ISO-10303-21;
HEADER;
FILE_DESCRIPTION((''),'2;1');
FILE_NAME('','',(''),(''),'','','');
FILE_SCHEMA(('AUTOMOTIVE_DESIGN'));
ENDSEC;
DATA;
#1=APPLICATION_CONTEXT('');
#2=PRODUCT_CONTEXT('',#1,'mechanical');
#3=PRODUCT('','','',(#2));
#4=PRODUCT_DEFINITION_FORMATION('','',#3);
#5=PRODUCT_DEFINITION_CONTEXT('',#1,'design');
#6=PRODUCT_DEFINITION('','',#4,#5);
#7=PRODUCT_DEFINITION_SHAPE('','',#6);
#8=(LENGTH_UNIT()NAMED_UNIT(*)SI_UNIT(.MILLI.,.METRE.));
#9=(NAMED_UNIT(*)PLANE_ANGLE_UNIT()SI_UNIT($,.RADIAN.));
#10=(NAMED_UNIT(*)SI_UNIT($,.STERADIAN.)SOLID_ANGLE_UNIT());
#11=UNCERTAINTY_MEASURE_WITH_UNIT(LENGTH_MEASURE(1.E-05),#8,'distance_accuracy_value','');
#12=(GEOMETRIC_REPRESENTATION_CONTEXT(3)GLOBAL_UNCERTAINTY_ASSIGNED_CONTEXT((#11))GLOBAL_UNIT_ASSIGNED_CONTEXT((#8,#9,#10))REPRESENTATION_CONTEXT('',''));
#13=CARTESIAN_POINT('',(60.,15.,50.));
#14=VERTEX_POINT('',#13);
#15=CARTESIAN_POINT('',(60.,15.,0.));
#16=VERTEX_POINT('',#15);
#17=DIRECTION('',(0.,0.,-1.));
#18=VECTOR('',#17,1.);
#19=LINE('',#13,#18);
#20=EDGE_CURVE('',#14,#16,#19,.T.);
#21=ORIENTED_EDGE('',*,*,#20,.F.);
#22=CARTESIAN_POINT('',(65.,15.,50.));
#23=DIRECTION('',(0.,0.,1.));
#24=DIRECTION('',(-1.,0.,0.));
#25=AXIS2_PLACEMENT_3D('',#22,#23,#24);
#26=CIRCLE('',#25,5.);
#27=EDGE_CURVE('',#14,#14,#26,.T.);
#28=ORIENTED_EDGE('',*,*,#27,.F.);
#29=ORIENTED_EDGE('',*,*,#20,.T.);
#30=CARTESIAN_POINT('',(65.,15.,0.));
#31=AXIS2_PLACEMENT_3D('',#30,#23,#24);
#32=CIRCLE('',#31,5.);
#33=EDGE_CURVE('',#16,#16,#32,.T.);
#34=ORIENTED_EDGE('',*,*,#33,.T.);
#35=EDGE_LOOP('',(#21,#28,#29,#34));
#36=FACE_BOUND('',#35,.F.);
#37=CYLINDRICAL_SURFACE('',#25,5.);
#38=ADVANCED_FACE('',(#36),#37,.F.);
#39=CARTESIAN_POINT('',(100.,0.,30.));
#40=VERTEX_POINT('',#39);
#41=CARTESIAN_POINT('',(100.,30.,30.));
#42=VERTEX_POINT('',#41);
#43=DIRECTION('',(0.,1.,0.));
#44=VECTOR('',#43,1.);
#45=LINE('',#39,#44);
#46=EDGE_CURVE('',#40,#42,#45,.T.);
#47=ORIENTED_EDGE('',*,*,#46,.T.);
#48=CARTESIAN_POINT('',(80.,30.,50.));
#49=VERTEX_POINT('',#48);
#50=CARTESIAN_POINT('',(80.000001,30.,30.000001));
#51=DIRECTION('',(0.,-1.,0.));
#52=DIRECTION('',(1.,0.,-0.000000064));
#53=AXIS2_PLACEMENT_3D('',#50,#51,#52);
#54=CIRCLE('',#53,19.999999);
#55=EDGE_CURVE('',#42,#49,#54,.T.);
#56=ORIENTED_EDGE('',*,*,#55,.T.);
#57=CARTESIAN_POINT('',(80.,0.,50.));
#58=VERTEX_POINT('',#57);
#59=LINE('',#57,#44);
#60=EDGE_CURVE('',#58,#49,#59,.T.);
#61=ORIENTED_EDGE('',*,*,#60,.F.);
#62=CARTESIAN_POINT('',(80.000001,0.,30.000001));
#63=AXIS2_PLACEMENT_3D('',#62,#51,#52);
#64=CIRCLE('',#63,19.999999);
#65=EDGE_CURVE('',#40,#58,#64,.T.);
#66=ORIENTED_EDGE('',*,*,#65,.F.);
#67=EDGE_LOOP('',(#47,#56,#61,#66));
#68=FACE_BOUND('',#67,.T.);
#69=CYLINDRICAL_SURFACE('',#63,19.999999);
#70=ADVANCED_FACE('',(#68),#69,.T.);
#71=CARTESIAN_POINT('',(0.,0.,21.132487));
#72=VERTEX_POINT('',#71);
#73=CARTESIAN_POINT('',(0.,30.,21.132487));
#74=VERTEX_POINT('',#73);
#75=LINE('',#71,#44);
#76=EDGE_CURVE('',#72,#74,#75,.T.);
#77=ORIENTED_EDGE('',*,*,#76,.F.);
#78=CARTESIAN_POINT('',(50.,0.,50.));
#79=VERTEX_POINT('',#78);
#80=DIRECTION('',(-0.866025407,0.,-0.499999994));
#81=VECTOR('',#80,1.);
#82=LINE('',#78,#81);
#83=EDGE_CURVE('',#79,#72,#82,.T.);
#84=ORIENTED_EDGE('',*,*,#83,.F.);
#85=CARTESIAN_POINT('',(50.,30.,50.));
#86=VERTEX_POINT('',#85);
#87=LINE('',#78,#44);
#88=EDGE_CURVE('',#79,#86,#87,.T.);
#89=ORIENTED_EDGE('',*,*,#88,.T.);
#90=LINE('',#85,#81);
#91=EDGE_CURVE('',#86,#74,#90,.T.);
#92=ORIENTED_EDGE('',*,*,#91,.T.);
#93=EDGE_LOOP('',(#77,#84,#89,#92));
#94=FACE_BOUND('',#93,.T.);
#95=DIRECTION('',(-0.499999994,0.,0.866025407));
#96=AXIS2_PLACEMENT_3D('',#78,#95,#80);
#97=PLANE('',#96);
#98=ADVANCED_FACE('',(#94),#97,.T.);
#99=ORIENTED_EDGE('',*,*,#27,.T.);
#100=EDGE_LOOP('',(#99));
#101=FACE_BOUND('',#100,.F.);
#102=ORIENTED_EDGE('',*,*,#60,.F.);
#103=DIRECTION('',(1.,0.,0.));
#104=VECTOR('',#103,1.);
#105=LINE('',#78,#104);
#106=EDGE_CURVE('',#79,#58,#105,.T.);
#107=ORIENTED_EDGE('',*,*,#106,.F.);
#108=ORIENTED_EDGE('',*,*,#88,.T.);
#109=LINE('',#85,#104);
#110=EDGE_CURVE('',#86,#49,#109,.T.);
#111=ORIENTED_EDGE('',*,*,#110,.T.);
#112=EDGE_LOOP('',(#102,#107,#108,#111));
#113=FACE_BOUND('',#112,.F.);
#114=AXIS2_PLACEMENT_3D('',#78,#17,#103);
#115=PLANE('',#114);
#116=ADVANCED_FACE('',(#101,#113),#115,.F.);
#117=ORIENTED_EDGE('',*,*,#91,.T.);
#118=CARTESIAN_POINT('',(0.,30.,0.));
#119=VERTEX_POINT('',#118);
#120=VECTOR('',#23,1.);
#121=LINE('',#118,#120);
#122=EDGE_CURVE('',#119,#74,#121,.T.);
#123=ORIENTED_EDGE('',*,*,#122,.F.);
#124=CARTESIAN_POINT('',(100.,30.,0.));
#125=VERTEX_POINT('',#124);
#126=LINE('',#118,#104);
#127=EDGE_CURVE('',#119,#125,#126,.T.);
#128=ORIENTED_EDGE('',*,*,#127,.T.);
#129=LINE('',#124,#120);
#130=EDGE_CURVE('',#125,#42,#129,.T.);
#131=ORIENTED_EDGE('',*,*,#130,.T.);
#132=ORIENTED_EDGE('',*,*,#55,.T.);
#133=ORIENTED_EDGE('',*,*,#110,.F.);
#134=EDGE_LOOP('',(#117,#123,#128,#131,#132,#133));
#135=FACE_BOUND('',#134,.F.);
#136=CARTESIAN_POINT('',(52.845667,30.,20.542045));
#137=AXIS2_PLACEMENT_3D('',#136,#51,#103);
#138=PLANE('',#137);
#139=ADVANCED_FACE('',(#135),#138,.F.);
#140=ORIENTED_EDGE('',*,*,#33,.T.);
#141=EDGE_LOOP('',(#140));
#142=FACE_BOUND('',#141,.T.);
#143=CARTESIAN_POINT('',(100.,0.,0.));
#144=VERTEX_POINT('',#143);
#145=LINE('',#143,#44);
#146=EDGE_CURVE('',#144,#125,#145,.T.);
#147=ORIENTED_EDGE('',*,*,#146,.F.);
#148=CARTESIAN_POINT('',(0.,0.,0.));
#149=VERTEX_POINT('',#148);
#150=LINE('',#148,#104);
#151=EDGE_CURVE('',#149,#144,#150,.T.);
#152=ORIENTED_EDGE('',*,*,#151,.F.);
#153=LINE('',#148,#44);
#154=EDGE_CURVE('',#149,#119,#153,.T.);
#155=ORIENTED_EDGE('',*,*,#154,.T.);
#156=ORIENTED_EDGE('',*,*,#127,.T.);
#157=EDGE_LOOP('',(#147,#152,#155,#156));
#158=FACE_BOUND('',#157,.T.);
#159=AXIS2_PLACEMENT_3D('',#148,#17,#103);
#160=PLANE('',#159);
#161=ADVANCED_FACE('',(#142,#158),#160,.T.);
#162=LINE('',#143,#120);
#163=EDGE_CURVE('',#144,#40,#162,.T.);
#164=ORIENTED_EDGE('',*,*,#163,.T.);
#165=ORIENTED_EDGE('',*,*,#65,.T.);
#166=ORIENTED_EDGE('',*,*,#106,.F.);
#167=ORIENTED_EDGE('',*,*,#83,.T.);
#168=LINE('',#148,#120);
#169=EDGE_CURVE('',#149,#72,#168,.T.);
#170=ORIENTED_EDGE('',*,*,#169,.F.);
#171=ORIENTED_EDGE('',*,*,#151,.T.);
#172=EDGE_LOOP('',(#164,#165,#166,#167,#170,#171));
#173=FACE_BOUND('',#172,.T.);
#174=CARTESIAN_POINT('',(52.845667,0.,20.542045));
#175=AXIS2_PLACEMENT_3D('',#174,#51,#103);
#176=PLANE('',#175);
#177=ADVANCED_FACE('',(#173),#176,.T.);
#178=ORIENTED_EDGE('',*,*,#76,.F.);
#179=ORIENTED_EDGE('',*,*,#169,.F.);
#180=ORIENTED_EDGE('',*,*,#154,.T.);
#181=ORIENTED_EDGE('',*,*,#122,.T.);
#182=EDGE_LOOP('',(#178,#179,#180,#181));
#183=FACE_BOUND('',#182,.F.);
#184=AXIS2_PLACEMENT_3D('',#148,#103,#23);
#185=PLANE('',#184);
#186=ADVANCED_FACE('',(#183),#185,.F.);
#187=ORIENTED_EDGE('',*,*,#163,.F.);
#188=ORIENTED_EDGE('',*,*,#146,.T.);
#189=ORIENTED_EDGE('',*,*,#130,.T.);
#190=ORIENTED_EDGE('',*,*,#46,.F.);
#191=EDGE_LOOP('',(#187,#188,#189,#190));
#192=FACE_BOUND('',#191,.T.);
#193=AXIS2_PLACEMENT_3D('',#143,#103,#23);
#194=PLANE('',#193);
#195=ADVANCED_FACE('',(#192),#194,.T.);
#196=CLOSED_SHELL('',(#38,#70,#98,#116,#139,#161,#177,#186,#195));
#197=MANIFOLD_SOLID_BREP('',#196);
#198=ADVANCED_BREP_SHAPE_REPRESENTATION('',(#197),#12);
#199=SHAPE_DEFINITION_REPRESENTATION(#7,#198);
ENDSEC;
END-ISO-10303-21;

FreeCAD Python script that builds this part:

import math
import FreeCAD as App
import Part
import Sketcher
Q = App.Units.Quantity

doc = App.newDocument("Part")
body = doc.addObject("PartDesign::Body", "Body")

sketch1 = body.newObject("Sketcher::SketchObject", "Sketch")
sketch1.AttachmentSupport = (doc.getObject("XZ_Plane"), [""])
sketch1.MapMode = "FlatFace"
sketch1.addGeometry([
    Part.LineSegment(App.Vector(0, 0, 0), App.Vector(100, 0, 0)),
    Part.LineSegment(App.Vector(100, 0, 0), App.Vector(100, 30, 0)),
    Part.ArcOfCircle(Part.Circle(App.Vector(80, 30, 0), App.Vector(0, 0, 1), 20), math.radians(0), math.radians(90)),
    Part.LineSegment(App.Vector(80, 50, 0), App.Vector(50, 50, 0)),
    Part.LineSegment(App.Vector(50, 50, 0), App.Vector(0, 21, 0)),
    Part.LineSegment(App.Vector(0, 21, 0), App.Vector(0, 0, 0)),
], False)
sketch1.addConstraint([
    Sketcher.Constraint("Coincident", 0, 2, 1, 1),
    Sketcher.Constraint("Tangent", 1, 2, 2, 1),
    Sketcher.Constraint("Tangent", 2, 2, 3, 1),
    Sketcher.Constraint("Coincident", 3, 2, 4, 1),
    Sketcher.Constraint("Coincident", 4, 2, 5, 1),
    Sketcher.Constraint("Coincident", 5, 2, 0, 1),
    Sketcher.Constraint("Horizontal", 0),
    Sketcher.Constraint("Vertical", 1),
    Sketcher.Constraint("Horizontal", 3),
    Sketcher.Constraint("Vertical", 5),
    Sketcher.Constraint("Coincident", 5, 2, -1, 1),
    Sketcher.Constraint("Equal", 3, 1),
    Sketcher.Constraint("Radius", 2, Q("19.999999 mm")),
    Sketcher.Constraint("DistanceX", 0, 1, 0, 2, Q("100 mm")),
    Sketcher.Constraint("DistanceX", 3, 2, 3, 1, Q("30 mm")),
    Sketcher.Constraint("Angle", 4, Q("-150 deg")),
])
pad1 = body.newObject("PartDesign::Pad", "Pad")
pad1.Profile = sketch1
pad1.Length = 30
pad1.Reversed = True

sketch2 = body.newObject("Sketcher::SketchObject", "Sketch001")
sketch2.AttachmentSupport = (doc.getObject("XY_Plane"), [""])
sketch2.MapMode = "FlatFace"
sketch2.AttachmentOffset = App.Placement(App.Vector(0, 0, 50), App.Rotation())
sketch2.addGeometry(Part.Circle(App.Vector(65, 15, 0), App.Vector(0, 0, 1), 5), False)
sketch2.addConstraint([
    Sketcher.Constraint("Diameter", 0, Q("10 mm")),
    Sketcher.Constraint("DistanceX", -1, 1, 0, 3, Q("65 mm")),
    Sketcher.Constraint("DistanceY", -1, 1, 0, 3, Q("15 mm")),
])
pocket1 = body.newObject("PartDesign::Pocket", "Pocket")
pocket1.Profile = sketch2
pocket1.Type = "ThroughAll"

doc.recompute()
